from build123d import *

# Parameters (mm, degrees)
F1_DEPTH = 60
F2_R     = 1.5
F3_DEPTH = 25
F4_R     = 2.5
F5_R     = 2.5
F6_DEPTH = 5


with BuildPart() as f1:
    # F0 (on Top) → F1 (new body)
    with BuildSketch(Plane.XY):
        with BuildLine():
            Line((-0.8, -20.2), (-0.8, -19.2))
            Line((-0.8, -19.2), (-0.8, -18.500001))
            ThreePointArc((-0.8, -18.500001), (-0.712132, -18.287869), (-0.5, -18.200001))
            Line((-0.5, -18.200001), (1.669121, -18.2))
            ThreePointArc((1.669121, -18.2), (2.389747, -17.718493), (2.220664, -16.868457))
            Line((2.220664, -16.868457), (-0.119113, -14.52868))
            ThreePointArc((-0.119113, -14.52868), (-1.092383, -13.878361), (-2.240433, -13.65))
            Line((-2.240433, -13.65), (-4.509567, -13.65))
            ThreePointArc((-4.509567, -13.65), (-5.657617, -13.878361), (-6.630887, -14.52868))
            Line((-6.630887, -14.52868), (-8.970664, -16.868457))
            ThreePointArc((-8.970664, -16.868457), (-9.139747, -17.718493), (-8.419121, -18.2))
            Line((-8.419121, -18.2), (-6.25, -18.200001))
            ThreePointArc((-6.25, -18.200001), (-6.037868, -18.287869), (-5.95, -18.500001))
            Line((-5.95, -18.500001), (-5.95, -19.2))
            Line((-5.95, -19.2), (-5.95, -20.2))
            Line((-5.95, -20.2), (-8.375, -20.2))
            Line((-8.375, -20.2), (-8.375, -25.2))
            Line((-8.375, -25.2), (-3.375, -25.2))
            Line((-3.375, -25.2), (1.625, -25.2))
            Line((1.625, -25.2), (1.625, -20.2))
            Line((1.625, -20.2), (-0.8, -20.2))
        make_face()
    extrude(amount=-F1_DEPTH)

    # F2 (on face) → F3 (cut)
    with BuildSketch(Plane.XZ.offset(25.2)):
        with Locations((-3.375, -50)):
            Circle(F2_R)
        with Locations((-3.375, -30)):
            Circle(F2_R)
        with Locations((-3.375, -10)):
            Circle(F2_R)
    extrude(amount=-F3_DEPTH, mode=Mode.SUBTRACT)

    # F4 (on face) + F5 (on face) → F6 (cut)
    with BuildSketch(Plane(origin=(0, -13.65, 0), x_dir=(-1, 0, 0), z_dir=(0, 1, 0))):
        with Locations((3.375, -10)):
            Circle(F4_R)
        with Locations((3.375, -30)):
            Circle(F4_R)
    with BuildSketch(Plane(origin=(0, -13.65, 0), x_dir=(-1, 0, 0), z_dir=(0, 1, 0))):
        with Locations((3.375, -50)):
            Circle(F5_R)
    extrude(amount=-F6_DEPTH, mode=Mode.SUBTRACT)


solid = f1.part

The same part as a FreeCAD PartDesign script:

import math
import FreeCAD as App
import Part
import Sketcher

V = App.Vector

doc = App.newDocument("Part")
body = doc.addObject("PartDesign::Body", "Body")

# Sketch on XY plane
sketch1 = body.newObject("Sketcher::SketchObject", "Sketch")
sketch1.AttachmentSupport = (doc.getObject("XY_Plane"), [""])
sketch1.MapMode = "FlatFace"
sketch1.addGeometry([
    Part.LineSegment(V(-0.8, -20.2, 0), V(-0.8, -18.500001, 0)),  # 0
    Part.ArcOfCircle(Part.Circle(V(-0.5, -18.500001, 0), V(0, 0, 1), 0.3), math.radians(90.000022), math.radians(179.999978)),  # 1
    Part.LineSegment(V(-0.5, -18.200001, 0), V(1.669121, -18.2, 0)),  # 2
    Part.ArcOfCircle(Part.Circle(V(1.669121, -17.42, 0), V(0, 0, 1), 0.78), math.radians(-90.000009), math.radians(45.000022)),  # 3
    Part.LineSegment(V(2.220664, -16.868457, 0), V(-0.119113, -14.52868, 0)),  # 4
    Part.ArcOfCircle(Part.Circle(V(-2.240431, -16.649994, 0), V(0, 0, 1), 2.999994), math.radians(44.999941), math.radians(90.000037)),  # 5
    Part.LineSegment(V(-2.240433, -13.65, 0), V(-4.509567, -13.65, 0)),  # 6
    Part.ArcOfCircle(Part.Circle(V(-4.509569, -16.649994, 0), V(0, 0, 1), 2.999994), math.radians(89.999963), math.radians(135.000059)),  # 7
    Part.LineSegment(V(-6.630887, -14.52868, 0), V(-8.970664, -16.868457, 0)),  # 8
    Part.ArcOfCircle(Part.Circle(V(-8.419121, -17.42, 0), V(0, 0, 1), 0.78), math.radians(134.999978), math.radians(270.000009)),  # 9
    Part.LineSegment(V(-8.419121, -18.2, 0), V(-6.25, -18.200001, 0)),  # 10
    Part.ArcOfCircle(Part.Circle(V(-6.25, -18.500001, 0), V(0, 0, 1), 0.3), math.radians(0.000022), math.radians(89.999978)),  # 11
    Part.LineSegment(V(-5.95, -18.500001, 0), V(-5.95, -20.2, 0)),  # 12
    Part.LineSegment(V(-5.95, -20.2, 0), V(-8.375, -20.2, 0)),  # 13
    Part.LineSegment(V(-8.375, -20.2, 0), V(-8.375, -25.2, 0)),  # 14
    Part.LineSegment(V(-8.375, -25.2, 0), V(1.625, -25.2, 0)),  # 15
    Part.LineSegment(V(1.625, -25.2, 0), V(1.625, -20.2, 0)),  # 16
    Part.LineSegment(V(1.625, -20.2, 0), V(-0.8, -20.2, 0)),  # 17
], False)
sketch1.addConstraint([
    Sketcher.Constraint("Tangent", 0, 2, 1, 2),
    Sketcher.Constraint("Tangent", 1, 1, 2, 1),
    Sketcher.Constraint("Tangent", 2, 2, 3, 1),
    Sketcher.Constraint("Tangent", 3, 2, 4, 1),
    Sketcher.Constraint("Tangent", 4, 2, 5, 1),
    Sketcher.Constraint("Tangent", 5, 2, 6, 1),
    Sketcher.Constraint("Tangent", 6, 2, 7, 1),
    Sketcher.Constraint("Tangent", 7, 2, 8, 1),
    Sketcher.Constraint("Tangent", 8, 2, 9, 1),
    Sketcher.Constraint("Tangent", 9, 2, 10, 1),
    Sketcher.Constraint("Tangent", 10, 2, 11, 2),
    Sketcher.Constraint("Tangent", 11, 1, 12, 1),
    Sketcher.Constraint("Coincident", 12, 2, 13, 1),
    Sketcher.Constraint("Coincident", 13, 2, 14, 1),
    Sketcher.Constraint("Coincident", 14, 2, 15, 1),
    Sketcher.Constraint("Coincident", 15, 2, 16, 1),
    Sketcher.Constraint("Coincident", 16, 2, 17, 1),
    Sketcher.Constraint("Coincident", 17, 2, 0, 1),
    Sketcher.Constraint("Vertical", 0),
    Sketcher.Constraint("Horizontal", 2),
    Sketcher.Constraint("Horizontal", 6),
    Sketcher.Constraint("Horizontal", 10),
    Sketcher.Constraint("Vertical", 12),
    Sketcher.Constraint("Horizontal", 13),
    Sketcher.Constraint("Vertical", 14),
    Sketcher.Constraint("Horizontal", 15),
    Sketcher.Constraint("Vertical", 16),
    Sketcher.Constraint("Horizontal", 17),
    Sketcher.Constraint("Equal", 5, 7),
    Sketcher.Constraint("Equal", 3, 9),
    Sketcher.Constraint("Equal", 1, 11),
    Sketcher.Constraint("Perpendicular", 4, 8),
    Sketcher.Constraint("Horizontal", 3, 3, 9, 3),
    Sketcher.Constraint("Horizontal", 4, 2, 7, 2),
    Sketcher.Constraint("Horizontal", 13, 2, 16, 2),
    Sketcher.Constraint("Equal", 2, 10),
    Sketcher.Constraint("Equal", 13, 17),
    Sketcher.Constraint("Radius", 1, 0.3),
    Sketcher.Constraint("DistanceX", 15, 1, 15, 2, 10.0),
    Sketcher.Constraint("DistanceY", 14, 2, 14, 1, 5.0),
    Sketcher.Constraint("Radius", 3, 0.78),
    Sketcher.Constraint("DistanceY", 0, 1, 0, 2, 1.699999),
    Sketcher.Constraint("DistanceX", 1, 3, -1, 1, 0.5),
    Sketcher.Constraint("DistanceY", 1, 3, -1, 1, 18.500001),
    Sketcher.Constraint("DistanceX", 13, 2, 13, 1, 2.425),
    Sketcher.Constraint("DistanceY", 5, 2, -1, 1, 13.65),
    Sketcher.Constraint("Radius", 5, 2.999994),
    Sketcher.Constraint("DistanceX", 2, 1, 2, 2, 2.169121),
])
pad1 = body.newObject("PartDesign::Pad", "Pad")
pad1.Profile = sketch1
pad1.Length = 60
pad1.Reversed = True

# Sketch on XZ plane
sketch2 = body.newObject("Sketcher::SketchObject", "Sketch001")
sketch2.AttachmentSupport = (doc.getObject("XZ_Plane"), [""])
sketch2.MapMode = "FlatFace"
sketch2.AttachmentOffset = App.Placement(V(0, 0, 25.2), App.Rotation())
sketch2.addGeometry([
    Part.Circle(V(-3.375, -50, 0), V(0, 0, 1), 1.5),
    Part.Circle(V(-3.375, -30, 0), V(0, 0, 1), 1.5),
    Part.Circle(V(-3.375, -10, 0), V(0, 0, 1), 1.5),
], False)
sketch2.addConstraint([
    Sketcher.Constraint("Equal", 0, 1),
    Sketcher.Constraint("Equal", 1, 2),
    Sketcher.Constraint("Vertical", 0, 3, 1, 3),
    Sketcher.Constraint("Vertical", 1, 3, 2, 3),
    Sketcher.Constraint("Diameter", 0, 3.0),
    Sketcher.Constraint("DistanceY", 0, 3, -1, 1, 50.0),
    Sketcher.Constraint("DistanceY", 1, 3, -1, 1, 30.0),
    Sketcher.Constraint("DistanceY", 2, 3, -1, 1, 10.0),
    Sketcher.Constraint("DistanceX", 0, 3, -1, 1, 3.375),
])
pocket1 = body.newObject("PartDesign::Pocket", "Pocket")
pocket1.Profile = sketch2
pocket1.Length = 25

# Sketch on XZ plane
sketch3 = body.newObject("Sketcher::SketchObject", "Sketch002")
sketch3.AttachmentSupport = (doc.getObject("XZ_Plane"), [""])
sketch3.MapMode = "FlatFace"
sketch3.AttachmentOffset = App.Placement(V(0, 0, 13.65), App.Rotation())
sketch3.addGeometry([
    Part.Circle(V(-3.375, -10, 0), V(0, 0, 1), 2.5),
    Part.Circle(V(-3.375, -30, 0), V(0, 0, 1), 2.5),
    Part.Circle(V(-3.375, -50, 0), V(0, 0, 1), 2.5),
], False)
sketch3.addConstraint([
    Sketcher.Constraint("Equal", 0, 1),
    Sketcher.Constraint("Equal", 1, 2),
    Sketcher.Constraint("Vertical", 0, 3, 1, 3),
    Sketcher.Constraint("Vertical", 1, 3, 2, 3),
    Sketcher.Constraint("Diameter", 0, 5.0),
    Sketcher.Constraint("DistanceY", 0, 3, -1, 1, 10.0),
    Sketcher.Constraint("DistanceY", 1, 3, -1, 1, 30.0),
    Sketcher.Constraint("DistanceY", 2, 3, -1, 1, 50.0),
    Sketcher.Constraint("DistanceX", 0, 3, -1, 1, 3.375),
])
pocket2 = body.newObject("PartDesign::Pocket", "Pocket001")
pocket2.Profile = sketch3
pocket2.Length = 5
pocket2.Reversed = True

doc.recompute()
